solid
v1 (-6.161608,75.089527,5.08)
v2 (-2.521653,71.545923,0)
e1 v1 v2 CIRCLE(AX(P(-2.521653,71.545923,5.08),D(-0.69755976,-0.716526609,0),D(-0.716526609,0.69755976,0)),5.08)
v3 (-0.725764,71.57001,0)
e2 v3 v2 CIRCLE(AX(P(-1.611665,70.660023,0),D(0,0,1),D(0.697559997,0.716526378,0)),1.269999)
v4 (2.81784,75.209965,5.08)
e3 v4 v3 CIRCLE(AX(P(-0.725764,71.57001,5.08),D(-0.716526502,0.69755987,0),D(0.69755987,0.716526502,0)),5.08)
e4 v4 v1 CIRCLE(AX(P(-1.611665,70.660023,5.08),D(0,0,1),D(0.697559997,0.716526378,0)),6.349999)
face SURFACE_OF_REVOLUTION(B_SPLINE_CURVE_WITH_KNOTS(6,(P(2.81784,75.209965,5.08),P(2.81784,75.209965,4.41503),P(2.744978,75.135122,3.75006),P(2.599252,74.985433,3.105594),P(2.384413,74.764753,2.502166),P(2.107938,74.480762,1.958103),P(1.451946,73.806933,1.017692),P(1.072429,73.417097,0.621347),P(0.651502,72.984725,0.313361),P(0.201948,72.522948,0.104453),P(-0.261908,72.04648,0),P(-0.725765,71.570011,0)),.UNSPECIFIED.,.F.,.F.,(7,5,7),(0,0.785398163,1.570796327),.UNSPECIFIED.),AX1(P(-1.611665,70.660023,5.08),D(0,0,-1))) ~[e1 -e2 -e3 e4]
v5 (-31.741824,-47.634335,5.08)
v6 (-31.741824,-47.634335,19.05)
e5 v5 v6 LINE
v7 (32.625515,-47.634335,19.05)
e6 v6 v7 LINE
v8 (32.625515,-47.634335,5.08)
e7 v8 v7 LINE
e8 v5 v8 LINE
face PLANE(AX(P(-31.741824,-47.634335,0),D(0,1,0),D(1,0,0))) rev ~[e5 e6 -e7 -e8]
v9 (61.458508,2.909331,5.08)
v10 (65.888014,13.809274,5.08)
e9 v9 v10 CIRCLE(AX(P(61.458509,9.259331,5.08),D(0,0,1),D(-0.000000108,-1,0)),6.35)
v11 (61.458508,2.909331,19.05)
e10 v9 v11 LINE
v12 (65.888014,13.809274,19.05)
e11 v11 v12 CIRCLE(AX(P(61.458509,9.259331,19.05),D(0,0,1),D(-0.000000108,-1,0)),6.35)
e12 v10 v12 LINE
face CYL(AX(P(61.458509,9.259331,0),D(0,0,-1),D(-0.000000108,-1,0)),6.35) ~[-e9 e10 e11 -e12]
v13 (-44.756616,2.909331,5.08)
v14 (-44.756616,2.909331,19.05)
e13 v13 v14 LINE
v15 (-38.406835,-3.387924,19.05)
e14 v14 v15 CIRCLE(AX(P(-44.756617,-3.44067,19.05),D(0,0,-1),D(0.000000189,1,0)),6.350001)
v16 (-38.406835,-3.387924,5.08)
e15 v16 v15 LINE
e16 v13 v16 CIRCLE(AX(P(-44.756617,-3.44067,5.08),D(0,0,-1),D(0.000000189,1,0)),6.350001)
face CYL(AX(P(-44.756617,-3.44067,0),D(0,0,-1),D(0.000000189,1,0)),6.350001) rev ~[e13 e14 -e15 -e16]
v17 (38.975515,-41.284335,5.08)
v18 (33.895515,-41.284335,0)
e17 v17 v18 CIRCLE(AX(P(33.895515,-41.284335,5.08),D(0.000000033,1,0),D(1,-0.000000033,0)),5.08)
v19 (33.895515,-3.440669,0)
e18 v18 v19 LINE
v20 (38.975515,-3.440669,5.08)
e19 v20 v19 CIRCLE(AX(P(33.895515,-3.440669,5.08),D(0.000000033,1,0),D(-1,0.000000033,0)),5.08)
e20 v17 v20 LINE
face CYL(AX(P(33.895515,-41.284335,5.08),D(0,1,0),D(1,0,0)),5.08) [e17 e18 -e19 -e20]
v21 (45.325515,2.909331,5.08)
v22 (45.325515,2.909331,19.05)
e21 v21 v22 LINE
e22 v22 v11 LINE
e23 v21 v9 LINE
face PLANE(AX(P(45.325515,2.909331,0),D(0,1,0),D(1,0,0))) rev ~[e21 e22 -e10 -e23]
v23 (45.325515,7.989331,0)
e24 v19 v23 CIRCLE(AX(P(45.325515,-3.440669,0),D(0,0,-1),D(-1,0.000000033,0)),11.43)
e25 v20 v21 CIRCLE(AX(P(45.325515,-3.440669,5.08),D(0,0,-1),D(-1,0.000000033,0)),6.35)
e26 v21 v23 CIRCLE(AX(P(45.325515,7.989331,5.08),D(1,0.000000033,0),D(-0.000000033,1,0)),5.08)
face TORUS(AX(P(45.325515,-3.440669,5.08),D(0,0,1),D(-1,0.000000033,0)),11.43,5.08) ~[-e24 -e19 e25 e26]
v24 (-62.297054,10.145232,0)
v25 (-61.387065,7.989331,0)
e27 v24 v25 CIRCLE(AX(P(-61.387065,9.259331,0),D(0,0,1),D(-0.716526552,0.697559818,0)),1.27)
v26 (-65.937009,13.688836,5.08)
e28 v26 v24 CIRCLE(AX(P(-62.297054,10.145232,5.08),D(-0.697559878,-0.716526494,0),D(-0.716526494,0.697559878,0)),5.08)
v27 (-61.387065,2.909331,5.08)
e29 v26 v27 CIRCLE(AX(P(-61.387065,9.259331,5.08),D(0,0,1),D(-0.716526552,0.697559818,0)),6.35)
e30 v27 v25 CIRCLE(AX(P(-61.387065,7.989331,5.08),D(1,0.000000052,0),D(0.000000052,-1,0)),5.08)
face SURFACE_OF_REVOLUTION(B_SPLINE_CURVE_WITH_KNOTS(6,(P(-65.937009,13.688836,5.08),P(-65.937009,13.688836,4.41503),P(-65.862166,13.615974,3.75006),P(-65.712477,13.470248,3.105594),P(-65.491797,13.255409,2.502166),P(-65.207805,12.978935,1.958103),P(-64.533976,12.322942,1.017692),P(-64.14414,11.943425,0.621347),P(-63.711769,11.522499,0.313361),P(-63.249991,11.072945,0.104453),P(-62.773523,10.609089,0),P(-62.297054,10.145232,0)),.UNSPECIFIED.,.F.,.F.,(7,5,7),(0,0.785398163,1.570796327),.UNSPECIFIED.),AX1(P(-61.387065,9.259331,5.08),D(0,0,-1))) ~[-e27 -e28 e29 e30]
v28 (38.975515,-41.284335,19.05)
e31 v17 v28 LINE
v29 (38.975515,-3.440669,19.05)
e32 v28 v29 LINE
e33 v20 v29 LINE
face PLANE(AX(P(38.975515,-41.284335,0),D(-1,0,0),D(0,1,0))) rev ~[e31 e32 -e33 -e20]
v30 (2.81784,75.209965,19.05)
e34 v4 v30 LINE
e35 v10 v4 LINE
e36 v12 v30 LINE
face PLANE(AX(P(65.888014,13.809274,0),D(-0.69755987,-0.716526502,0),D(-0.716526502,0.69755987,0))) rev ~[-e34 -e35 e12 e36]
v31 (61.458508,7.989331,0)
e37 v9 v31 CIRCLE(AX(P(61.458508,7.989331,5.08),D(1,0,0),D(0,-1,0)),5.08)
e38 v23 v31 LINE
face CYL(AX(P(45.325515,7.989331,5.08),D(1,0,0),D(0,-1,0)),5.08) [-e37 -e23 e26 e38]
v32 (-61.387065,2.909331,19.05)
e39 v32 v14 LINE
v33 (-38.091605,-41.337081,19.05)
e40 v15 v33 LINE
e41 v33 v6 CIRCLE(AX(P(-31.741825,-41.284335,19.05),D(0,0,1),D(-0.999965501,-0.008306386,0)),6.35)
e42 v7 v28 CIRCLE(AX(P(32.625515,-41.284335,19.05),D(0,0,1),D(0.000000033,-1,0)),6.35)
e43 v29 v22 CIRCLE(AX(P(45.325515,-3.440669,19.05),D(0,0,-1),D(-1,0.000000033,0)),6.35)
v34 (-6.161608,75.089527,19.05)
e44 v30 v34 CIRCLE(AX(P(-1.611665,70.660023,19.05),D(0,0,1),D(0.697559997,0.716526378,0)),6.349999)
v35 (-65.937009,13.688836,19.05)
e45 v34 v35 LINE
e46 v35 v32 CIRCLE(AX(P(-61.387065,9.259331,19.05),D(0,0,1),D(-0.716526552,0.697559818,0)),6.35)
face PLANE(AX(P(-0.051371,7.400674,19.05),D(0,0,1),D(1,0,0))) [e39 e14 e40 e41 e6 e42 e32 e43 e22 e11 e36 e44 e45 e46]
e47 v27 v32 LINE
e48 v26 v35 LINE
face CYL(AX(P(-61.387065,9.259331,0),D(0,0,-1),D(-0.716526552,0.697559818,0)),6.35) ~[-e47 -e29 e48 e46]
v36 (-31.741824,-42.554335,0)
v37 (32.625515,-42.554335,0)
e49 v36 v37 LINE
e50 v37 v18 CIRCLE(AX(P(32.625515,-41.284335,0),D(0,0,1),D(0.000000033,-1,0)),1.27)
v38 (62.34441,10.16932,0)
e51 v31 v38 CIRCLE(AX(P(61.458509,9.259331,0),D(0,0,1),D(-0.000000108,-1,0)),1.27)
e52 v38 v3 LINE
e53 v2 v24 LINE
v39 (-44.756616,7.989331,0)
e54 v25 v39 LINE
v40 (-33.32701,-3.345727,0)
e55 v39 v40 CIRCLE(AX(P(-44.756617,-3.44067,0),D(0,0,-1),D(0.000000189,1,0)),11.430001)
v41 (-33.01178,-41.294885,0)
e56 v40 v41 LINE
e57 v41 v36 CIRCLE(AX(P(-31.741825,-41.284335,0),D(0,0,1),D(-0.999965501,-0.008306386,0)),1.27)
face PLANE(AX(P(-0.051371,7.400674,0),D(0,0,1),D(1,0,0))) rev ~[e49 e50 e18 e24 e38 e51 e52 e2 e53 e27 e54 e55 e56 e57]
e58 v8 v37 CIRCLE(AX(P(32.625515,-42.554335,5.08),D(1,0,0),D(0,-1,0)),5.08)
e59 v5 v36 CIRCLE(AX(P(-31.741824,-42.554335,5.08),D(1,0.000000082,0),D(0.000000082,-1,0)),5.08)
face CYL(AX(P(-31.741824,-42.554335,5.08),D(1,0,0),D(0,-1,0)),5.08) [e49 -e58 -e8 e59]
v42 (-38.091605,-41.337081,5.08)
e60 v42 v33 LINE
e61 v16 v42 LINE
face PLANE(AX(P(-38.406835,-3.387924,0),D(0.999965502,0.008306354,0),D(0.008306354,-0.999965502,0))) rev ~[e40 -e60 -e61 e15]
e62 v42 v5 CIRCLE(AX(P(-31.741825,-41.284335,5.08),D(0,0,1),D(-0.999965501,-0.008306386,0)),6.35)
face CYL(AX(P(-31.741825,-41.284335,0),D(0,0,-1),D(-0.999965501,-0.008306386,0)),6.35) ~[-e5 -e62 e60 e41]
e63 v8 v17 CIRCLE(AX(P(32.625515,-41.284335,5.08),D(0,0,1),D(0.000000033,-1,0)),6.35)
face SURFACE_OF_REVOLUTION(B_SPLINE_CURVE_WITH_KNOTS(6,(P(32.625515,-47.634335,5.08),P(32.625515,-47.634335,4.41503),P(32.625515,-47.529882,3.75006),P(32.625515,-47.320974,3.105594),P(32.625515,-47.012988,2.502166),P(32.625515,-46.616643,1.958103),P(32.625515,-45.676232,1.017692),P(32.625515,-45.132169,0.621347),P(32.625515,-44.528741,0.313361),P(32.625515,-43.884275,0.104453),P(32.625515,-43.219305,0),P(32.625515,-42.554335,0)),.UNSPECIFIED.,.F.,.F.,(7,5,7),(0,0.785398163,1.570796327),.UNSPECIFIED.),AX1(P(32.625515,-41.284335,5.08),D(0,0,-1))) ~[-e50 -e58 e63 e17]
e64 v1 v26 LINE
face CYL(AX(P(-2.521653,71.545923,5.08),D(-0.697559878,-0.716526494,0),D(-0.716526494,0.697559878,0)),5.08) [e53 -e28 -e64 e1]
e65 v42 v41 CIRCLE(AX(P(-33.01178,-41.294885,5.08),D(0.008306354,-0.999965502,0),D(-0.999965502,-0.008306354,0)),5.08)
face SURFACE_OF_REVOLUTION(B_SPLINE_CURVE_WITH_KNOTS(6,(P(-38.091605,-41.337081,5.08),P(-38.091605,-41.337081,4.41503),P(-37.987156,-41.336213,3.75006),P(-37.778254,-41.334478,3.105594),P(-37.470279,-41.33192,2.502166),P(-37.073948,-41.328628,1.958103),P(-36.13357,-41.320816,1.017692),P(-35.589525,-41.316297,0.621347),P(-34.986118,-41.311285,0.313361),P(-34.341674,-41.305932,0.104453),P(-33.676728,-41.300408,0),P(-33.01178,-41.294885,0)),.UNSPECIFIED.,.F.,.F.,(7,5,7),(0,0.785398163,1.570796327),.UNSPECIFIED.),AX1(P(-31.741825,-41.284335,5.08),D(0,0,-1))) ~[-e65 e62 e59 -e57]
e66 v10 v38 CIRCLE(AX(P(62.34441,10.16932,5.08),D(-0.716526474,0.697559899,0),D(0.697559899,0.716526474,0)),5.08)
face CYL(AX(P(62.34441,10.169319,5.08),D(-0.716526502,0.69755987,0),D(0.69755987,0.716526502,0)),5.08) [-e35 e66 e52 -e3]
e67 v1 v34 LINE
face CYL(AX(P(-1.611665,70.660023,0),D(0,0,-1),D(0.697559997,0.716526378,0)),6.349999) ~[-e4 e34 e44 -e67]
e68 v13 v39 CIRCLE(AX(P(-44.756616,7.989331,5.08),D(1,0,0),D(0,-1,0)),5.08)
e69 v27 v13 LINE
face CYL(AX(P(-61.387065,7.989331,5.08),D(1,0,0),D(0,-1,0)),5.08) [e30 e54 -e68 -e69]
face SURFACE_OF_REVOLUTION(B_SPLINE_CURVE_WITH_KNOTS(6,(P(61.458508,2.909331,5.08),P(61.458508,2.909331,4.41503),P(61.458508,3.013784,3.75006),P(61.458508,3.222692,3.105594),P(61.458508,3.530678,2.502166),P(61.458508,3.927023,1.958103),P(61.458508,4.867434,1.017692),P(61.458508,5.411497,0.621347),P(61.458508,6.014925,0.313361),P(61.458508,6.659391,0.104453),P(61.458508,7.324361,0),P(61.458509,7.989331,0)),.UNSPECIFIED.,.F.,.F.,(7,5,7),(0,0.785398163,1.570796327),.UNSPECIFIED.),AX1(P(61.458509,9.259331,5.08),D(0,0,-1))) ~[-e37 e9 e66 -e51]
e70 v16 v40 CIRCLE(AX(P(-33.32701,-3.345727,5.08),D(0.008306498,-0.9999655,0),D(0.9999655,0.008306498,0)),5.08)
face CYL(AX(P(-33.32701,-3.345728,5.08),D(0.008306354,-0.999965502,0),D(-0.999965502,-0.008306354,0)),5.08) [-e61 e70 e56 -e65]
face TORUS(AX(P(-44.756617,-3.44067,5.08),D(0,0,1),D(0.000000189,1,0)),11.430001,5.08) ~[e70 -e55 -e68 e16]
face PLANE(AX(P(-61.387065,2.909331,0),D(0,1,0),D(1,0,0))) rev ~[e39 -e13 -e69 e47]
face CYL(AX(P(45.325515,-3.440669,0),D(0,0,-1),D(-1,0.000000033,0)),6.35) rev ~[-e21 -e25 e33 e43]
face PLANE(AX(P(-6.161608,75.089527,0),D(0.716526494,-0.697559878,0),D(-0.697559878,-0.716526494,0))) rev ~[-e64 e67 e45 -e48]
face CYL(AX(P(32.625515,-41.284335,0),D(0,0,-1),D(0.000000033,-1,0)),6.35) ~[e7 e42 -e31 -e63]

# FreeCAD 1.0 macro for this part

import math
import FreeCAD as App
import Part
import Sketcher

V = App.Vector
Q = App.Units.Quantity


def edges_at(feature, points):
    """Names of the edges that pass closest to the given points."""
    edges = feature.Shape.Edges
    near = lambda p: min(range(len(edges)), key=lambda i: edges[i].distToShape(Part.Vertex(*p))[0])
    return sorted({f"Edge{near(p) + 1}" for p in points})

doc = App.newDocument("Part")
body = doc.addObject("PartDesign::Body", "Body")

# Sketch on XY plane
sketch1 = body.newObject("Sketcher::SketchObject", "Sketch")
sketch1.AttachmentSupport = (doc.getObject("XY_Plane"), [""])
sketch1.MapMode = "FlatFace"
sketch1.addGeometry(Part.ArcOfCircle(Part.Circle(V(45, -3, 0), V(0, 0, 1), 6), math.radians(90), math.radians(180)), False)
sketch1.addGeometry(Part.LineSegment(V(45, 3, 0), V(61, 3, 0)), False)
sketch1.addGeometry(Part.ArcOfCircle(Part.Circle(V(61, 9, 0), V(0, 0, 1), 6), math.radians(-90), math.radians(46)), False)
sketch1.addGeometry(Part.LineSegment(V(66, 14, 0), V(3, 75, 0)), False)
sketch1.addGeometry(Part.ArcOfCircle(Part.Circle(V(-2, 71, 0), V(0, 0, 1), 6), math.radians(46), math.radians(136)), False)
sketch1.addGeometry(Part.LineSegment(V(-6, 75, 0), V(-66, 14, 0)), False)
sketch1.addGeometry(Part.ArcOfCircle(Part.Circle(V(-61, 9, 0), V(0, 0, 1), 6), math.radians(136), math.radians(270)), False)
sketch1.addGeometry(Part.LineSegment(V(-61, 3, 0), V(-45, 3, 0)), False)
sketch1.addGeometry(Part.ArcOfCircle(Part.Circle(V(-45, -3, 0), V(0, 0, 1), 6), math.radians(0), math.radians(90)), False)
sketch1.addGeometry(Part.LineSegment(V(-38, -3, 0), V(-38, -41, 0)), False)
sketch1.addGeometry(Part.ArcOfCircle(Part.Circle(V(-32, -41, 0), V(0, 0, 1), 6), math.radians(-180), math.radians(-90)), False)
sketch1.addGeometry(Part.LineSegment(V(-32, -48, 0), V(33, -48, 0)), False)
sketch1.addGeometry(Part.ArcOfCircle(Part.Circle(V(33, -41, 0), V(0, 0, 1), 6), math.radians(-90), math.radians(0)), False)
sketch1.addGeometry(Part.LineSegment(V(39, -41, 0), V(39, -3, 0)), False)
sketch1.addConstraint(Sketcher.Constraint("Tangent", 0, 1, 1, 1))
sketch1.addConstraint(Sketcher.Constraint("Tangent", 1, 2, 2, 1))
sketch1.addConstraint(Sketcher.Constraint("Tangent", 2, 2, 3, 1))
sketch1.addConstraint(Sketcher.Constraint("Tangent", 3, 2, 4, 1))
sketch1.addConstraint(Sketcher.Constraint("Tangent", 4, 2, 5, 1))
sketch1.addConstraint(Sketcher.Constraint("Tangent", 5, 2, 6, 1))
sketch1.addConstraint(Sketcher.Constraint("Tangent", 6, 2, 7, 1))
sketch1.addConstraint(Sketcher.Constraint("Tangent", 7, 2, 8, 2))
sketch1.addConstraint(Sketcher.Constraint("Tangent", 8, 1, 9, 1))
sketch1.addConstraint(Sketcher.Constraint("Tangent", 9, 2, 10, 1))
sketch1.addConstraint(Sketcher.Constraint("Tangent", 10, 2, 11, 1))
sketch1.addConstraint(Sketcher.Constraint("Tangent", 11, 2, 12, 1))
sketch1.addConstraint(Sketcher.Constraint("Tangent", 12, 2, 13, 1))
sketch1.addConstraint(Sketcher.Constraint("Tangent", 13, 2, 0, 2))
sketch1.addConstraint(Sketcher.Constraint("Horizontal", 1))
sketch1.addConstraint(Sketcher.Constraint("Horizontal", 7))
sketch1.addConstraint(Sketcher.Constraint("Horizontal", 11))
sketch1.addConstraint(Sketcher.Constraint("Vertical", 13))
sketch1.addConstraint(Sketcher.Constraint("Equal", 0, 2))
sketch1.addConstraint(Sketcher.Constraint("Equal", 2, 4))
sketch1.addConstraint(Sketcher.Constraint("Equal", 4, 6))
sketch1.addConstraint(Sketcher.Constraint("Equal", 6, 8))
sketch1.addConstraint(Sketcher.Constraint("Equal", 8, 10))
sketch1.addConstraint(Sketcher.Constraint("Equal", 10, 12))
sketch1.addConstraint(Sketcher.Constraint("Perpendicular", 3, 5))
sketch1.addConstraint(Sketcher.Constraint("Horizontal", 2, 3, 6, 3))
sketch1.addConstraint(Sketcher.Constraint("Radius", 0, Q("0.25 in")))
sketch1.addConstraint(Sketcher.Constraint("DistanceX", 7, 1, 7, 2, Q("16.630449 mm")))
sketch1.addConstraint(Sketcher.Constraint("DistanceX", 11, 1, 11, 2, Q("64.367339 mm")))
sketch1.addConstraint(Sketcher.Constraint("DistanceX", 6, 3, 4, 3, Q("59.7754 mm")))
sketch1.addConstraint(Sketcher.Constraint("DistanceX", 0, 1, 2, 2, Q("20.562499 mm")))
sketch1.addConstraint(Sketcher.Constraint("Distance", 3, Q("88.022109 mm")))
sketch1.addConstraint(Sketcher.Constraint("DistanceY", 13, 1, 13, 2, Q("37.843666 mm")))
sketch1.addConstraint(Sketcher.Constraint("DistanceY", 0, 3, -1, 1, Q("3.440669 mm")))
sketch1.addConstraint(Sketcher.Constraint("DistanceX", -1, 1, 2, 3, Q("61.458509 mm")))
pad1 = body.newObject("PartDesign::Pad", "Pad")
pad1.Profile = sketch1
pad1.Length = Q("0.75 in")
doc.recompute()

fillet = body.newObject("PartDesign::Fillet", "Fillet")
fillet.Base = (pad1, edges_at(pad1, [
    (40.835, 1.049, 0),
    (53.392, 2.909, 0),
    (67.341, 6.869, 0),
    (34.353, 44.51, 0),
    (-1.697, 77.009, 0),
    (-36.049, 44.389, 0),
    (-67.237, 6.79, 0),
    (-53.072, 2.909, 0),
    (-40.285, 1.068, 0),
    (-38.249, -22.363, 0),
    (-36.213, -45.793, 0),
    (0.442, -47.634, 0),
    (37.116, -45.774, 0),
    (38.976, -22.363, 0),
]))
fillet.Radius = Q("0.2 in")

doc.recompute()
